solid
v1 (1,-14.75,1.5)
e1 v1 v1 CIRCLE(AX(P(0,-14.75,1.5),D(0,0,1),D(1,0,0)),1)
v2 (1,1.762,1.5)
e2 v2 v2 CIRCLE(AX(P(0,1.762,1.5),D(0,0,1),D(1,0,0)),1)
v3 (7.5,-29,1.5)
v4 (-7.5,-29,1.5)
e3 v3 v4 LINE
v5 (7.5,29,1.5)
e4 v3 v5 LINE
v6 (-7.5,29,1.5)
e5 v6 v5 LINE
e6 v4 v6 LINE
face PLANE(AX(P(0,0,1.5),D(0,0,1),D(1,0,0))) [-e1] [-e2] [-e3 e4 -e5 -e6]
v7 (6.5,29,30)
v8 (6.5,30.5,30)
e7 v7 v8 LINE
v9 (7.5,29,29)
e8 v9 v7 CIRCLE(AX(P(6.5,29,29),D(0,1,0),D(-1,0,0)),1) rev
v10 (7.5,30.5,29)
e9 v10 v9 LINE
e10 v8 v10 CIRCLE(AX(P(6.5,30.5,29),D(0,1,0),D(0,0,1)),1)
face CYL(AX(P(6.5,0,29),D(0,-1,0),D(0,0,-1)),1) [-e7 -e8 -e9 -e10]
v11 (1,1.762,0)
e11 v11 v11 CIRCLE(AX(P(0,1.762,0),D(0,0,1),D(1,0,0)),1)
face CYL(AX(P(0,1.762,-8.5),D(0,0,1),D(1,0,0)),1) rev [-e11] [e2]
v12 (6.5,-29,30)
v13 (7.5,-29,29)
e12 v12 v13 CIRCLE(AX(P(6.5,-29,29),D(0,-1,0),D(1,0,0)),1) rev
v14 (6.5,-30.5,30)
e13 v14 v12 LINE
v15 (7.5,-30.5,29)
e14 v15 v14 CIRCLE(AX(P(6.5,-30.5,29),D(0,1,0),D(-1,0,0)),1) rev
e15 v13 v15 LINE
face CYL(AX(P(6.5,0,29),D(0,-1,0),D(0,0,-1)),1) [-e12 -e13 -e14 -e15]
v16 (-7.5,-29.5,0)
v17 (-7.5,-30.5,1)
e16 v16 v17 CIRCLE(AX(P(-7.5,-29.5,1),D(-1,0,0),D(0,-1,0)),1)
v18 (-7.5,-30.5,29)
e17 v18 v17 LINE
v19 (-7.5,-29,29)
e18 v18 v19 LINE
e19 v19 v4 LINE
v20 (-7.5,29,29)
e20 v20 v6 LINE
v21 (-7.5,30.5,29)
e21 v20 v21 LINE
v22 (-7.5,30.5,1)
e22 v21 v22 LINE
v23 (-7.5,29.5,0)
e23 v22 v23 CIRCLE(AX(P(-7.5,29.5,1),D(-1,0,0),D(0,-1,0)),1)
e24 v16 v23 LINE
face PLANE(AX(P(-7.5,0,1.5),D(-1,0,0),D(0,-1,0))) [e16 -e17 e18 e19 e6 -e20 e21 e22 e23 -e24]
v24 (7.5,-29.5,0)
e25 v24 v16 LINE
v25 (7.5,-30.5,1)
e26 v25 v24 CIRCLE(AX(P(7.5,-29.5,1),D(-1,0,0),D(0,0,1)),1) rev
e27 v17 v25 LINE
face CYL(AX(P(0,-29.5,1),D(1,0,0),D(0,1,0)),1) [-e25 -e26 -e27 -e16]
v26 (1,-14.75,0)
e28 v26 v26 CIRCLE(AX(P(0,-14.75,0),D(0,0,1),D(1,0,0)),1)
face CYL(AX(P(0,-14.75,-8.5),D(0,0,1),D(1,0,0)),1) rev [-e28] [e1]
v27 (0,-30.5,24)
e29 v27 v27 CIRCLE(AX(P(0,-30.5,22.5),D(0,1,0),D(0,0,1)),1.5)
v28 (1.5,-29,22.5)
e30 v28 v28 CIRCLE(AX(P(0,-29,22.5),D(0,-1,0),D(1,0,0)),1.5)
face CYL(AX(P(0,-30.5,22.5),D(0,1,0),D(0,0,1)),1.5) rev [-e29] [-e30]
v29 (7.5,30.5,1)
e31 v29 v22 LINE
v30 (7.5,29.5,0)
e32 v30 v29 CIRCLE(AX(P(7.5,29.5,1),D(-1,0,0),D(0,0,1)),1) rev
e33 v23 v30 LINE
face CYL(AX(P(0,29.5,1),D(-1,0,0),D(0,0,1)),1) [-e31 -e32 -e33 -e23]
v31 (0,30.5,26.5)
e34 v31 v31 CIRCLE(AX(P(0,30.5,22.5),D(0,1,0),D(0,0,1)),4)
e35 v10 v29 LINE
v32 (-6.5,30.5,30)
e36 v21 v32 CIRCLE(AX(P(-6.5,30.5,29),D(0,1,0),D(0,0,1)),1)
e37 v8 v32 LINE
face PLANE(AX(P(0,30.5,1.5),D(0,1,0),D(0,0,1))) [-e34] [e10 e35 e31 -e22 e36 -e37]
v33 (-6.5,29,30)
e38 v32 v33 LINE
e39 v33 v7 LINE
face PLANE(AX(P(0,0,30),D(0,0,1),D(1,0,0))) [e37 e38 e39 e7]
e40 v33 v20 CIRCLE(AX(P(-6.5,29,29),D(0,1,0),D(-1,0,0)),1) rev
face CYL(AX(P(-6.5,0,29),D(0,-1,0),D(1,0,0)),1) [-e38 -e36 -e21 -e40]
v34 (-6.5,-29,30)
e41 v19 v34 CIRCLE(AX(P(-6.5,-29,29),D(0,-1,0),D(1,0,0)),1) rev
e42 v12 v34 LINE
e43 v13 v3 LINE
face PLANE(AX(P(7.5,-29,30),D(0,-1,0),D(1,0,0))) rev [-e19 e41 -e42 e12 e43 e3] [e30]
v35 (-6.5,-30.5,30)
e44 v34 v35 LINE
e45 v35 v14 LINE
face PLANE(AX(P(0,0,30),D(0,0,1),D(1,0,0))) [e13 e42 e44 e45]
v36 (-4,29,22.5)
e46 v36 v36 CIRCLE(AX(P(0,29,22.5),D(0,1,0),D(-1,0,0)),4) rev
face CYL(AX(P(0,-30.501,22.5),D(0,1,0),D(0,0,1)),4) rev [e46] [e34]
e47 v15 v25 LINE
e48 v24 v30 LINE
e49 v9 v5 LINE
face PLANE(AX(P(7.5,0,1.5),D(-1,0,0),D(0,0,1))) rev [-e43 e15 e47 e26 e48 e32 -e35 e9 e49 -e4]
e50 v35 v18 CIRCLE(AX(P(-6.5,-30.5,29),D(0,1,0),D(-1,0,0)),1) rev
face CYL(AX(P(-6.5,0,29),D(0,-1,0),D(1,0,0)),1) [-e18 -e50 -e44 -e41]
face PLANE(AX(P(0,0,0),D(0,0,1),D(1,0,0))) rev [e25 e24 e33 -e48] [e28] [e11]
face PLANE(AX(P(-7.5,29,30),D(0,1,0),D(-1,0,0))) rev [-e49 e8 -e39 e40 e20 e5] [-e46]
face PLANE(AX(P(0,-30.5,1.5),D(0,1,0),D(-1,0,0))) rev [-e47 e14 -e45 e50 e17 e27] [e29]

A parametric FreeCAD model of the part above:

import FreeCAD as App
import Part
import Sketcher

V = App.Vector
Q = App.Units.Quantity


def edges_at(feature, points):
    """Names of the edges that pass closest to the given points."""
    edges = feature.Shape.Edges
    near = lambda p: min(range(len(edges)), key=lambda i: edges[i].distToShape(Part.Vertex(*p))[0])
    return sorted({f"Edge{near(p) + 1}" for p in points})

doc = App.newDocument("Part")
body = doc.addObject("PartDesign::Body", "Body")

# Sketch on XY plane
sketch1 = body.newObject("Sketcher::SketchObject", "Sketch")
sketch1.AttachmentSupport = (doc.getObject("XY_Plane"), [""])
sketch1.MapMode = "FlatFace"
sketch1.addGeometry(Part.LineSegment(V(-7.5, -30.5, 0), V(7.5, -30.5, 0)), False)
sketch1.addGeometry(Part.LineSegment(V(7.5, -30.5, 0), V(7.5, 30.5, 0)), False)
sketch1.addGeometry(Part.LineSegment(V(7.5, 30.5, 0), V(-7.5, 30.5, 0)), False)
sketch1.addGeometry(Part.LineSegment(V(-7.5, 30.5, 0), V(-7.5, -30.5, 0)), False)
sketch1.addConstraint(Sketcher.Constraint("Coincident", 0, 2, 1, 1))
sketch1.addConstraint(Sketcher.Constraint("Coincident", 1, 2, 2, 1))
sketch1.addConstraint(Sketcher.Constraint("Coincident", 2, 2, 3, 1))
sketch1.addConstraint(Sketcher.Constraint("Coincident", 3, 2, 0, 1))
sketch1.addConstraint(Sketcher.Constraint("Horizontal", 0))
sketch1.addConstraint(Sketcher.Constraint("Vertical", 1))
sketch1.addConstraint(Sketcher.Constraint("Horizontal", 2))
sketch1.addConstraint(Sketcher.Constraint("Vertical", 3))
sketch1.addConstraint(Sketcher.Constraint("Symmetric", 0, 2, 2, 2, -1, 1))
sketch1.addConstraint(Sketcher.Constraint("DistanceX", 0, 1, 0, 2, Q("15 mm")))
sketch1.addConstraint(Sketcher.Constraint("DistanceY", 1, 1, 1, 2, Q("61 mm")))
pad1 = body.newObject("PartDesign::Pad", "Pad")
pad1.Profile = sketch1
pad1.Length = 1.5

# Sketch on XY plane
sketch2 = body.newObject("Sketcher::SketchObject", "Sketch001")
sketch2.AttachmentSupport = (doc.getObject("XY_Plane"), [""])
sketch2.MapMode = "FlatFace"
sketch2.AttachmentOffset = App.Placement(V(0, 0, 1.5), App.Rotation())
sketch2.addGeometry(Part.LineSegment(V(-7.5, 30.5, 0), V(-7.5, 29, 0)), False)
sketch2.addGeometry(Part.LineSegment(V(-7.5, 29, 0), V(7.5, 29, 0)), False)
sketch2.addGeometry(Part.LineSegment(V(7.5, 29, 0), V(7.5, 30.5, 0)), False)
sketch2.addGeometry(Part.LineSegment(V(7.5, 30.5, 0), V(-7.5, 30.5, 0)), False)
sketch2.addGeometry(Part.LineSegment(V(-7.5, -29, 0), V(-7.5, -30.5, 0)), False)
sketch2.addGeometry(Part.LineSegment(V(-7.5, -30.5, 0), V(7.5, -30.5, 0)), False)
sketch2.addGeometry(Part.LineSegment(V(7.5, -30.5, 0), V(7.5, -29, 0)), False)
sketch2.addGeometry(Part.LineSegment(V(7.5, -29, 0), V(-7.5, -29, 0)), False)
sketch2.addConstraint(Sketcher.Constraint("Coincident", 0, 2, 1, 1))
sketch2.addConstraint(Sketcher.Constraint("Coincident", 1, 2, 2, 1))
sketch2.addConstraint(Sketcher.Constraint("Coincident", 2, 2, 3, 1))
sketch2.addConstraint(Sketcher.Constraint("Coincident", 3, 2, 0, 1))
sketch2.addConstraint(Sketcher.Constraint("Coincident", 4, 2, 5, 1))
sketch2.addConstraint(Sketcher.Constraint("Coincident", 5, 2, 6, 1))
sketch2.addConstraint(Sketcher.Constraint("Coincident", 6, 2, 7, 1))
sketch2.addConstraint(Sketcher.Constraint("Coincident", 7, 2, 4, 1))
sketch2.addConstraint(Sketcher.Constraint("Vertical", 0))
sketch2.addConstraint(Sketcher.Constraint("Horizontal", 1))
sketch2.addConstraint(Sketcher.Constraint("Vertical", 2))
sketch2.addConstraint(Sketcher.Constraint("Horizontal", 3))
sketch2.addConstraint(Sketcher.Constraint("Vertical", 4))
sketch2.addConstraint(Sketcher.Constraint("Horizontal", 5))
sketch2.addConstraint(Sketcher.Constraint("Vertical", 6))
sketch2.addConstraint(Sketcher.Constraint("Horizontal", 7))
sketch2.addConstraint(Sketcher.Constraint("Symmetric", 2, 2, 4, 2, -1, 1))
sketch2.addConstraint(Sketcher.Constraint("Symmetric", 0, 2, 6, 2, -1, 1))
sketch2.addConstraint(Sketcher.Constraint("Vertical", 3, 2, 4, 2))
sketch2.addConstraint(Sketcher.Constraint("DistanceX", 1, 1, 1, 2, Q("15 mm")))
sketch2.addConstraint(Sketcher.Constraint("DistanceY", 0, 2, 0, 1, Q("1.5 mm")))
sketch2.addConstraint(Sketcher.Constraint("DistanceY", -1, 1, 0, 2, Q("29 mm")))
pad2 = body.newObject("PartDesign::Pad", "Pad001")
pad2.Profile = sketch2
pad2.Length = 28.5

# Sketch on XZ plane
sketch3 = body.newObject("Sketcher::SketchObject", "Sketch002")
sketch3.AttachmentSupport = (doc.getObject("XZ_Plane"), [""])
sketch3.MapMode = "FlatFace"
sketch3.AttachmentOffset = App.Placement(V(0, 0, -30.5), App.Rotation())
sketch3.addGeometry(Part.Circle(V(0, 22.5, 0), V(0, 0, 1), 1.5), False)
sketch3.addConstraint(Sketcher.Constraint("PointOnObject", 0, 3, -2))
sketch3.addConstraint(Sketcher.Constraint("Diameter", 0, Q("3 mm")))
sketch3.addConstraint(Sketcher.Constraint("DistanceY", -1, 1, 0, 3, Q("22.5 mm")))
pocket1 = body.newObject("PartDesign::Pocket", "Pocket")
pocket1.Profile = sketch3
pocket1.Type = "ThroughAll"
pocket1.Reversed = True
doc.recompute()

fillet = body.newObject("PartDesign::Fillet", "Fillet")
fillet.Base = (pocket1, edges_at(pocket1, [
    (0, -30.5, 0),
    (-7.5, -29.75, 30),
    (7.5, -29.75, 30),
    (7.5, 29.75, 30),
    (-7.5, 29.75, 30),
    (0, 30.5, 0),
]))
fillet.Radius = 1

# Sketch on XZ plane
sketch4 = body.newObject("Sketcher::SketchObject", "Sketch003")
sketch4.AttachmentSupport = (doc.getObject("XZ_Plane"), [""])
sketch4.MapMode = "FlatFace"
sketch4.AttachmentOffset = App.Placement(V(0, 0, -30.5), App.Rotation())
sketch4.addGeometry(Part.Circle(V(0, 22.5, 0), V(0, 0, 1), 4), False)
sketch4.addConstraint(Sketcher.Constraint("PointOnObject", 0, 3, -2))
sketch4.addConstraint(Sketcher.Constraint("Diameter", 0, Q("8 mm")))
sketch4.addConstraint(Sketcher.Constraint("DistanceY", -1, 1, 0, 3, Q("22.5 mm")))
pocket2 = body.newObject("PartDesign::Pocket", "Pocket001")
pocket2.Profile = sketch4
pocket2.Length = 1.5
pocket2.Reversed = True

# Sketch on XY plane
sketch5 = body.newObject("Sketcher::SketchObject", "Sketch004")
sketch5.AttachmentSupport = (doc.getObject("XY_Plane"), [""])
sketch5.MapMode = "FlatFace"
sketch5.AttachmentOffset = App.Placement(V(0, 0, 1.5), App.Rotation())
sketch5.addGeometry(Part.Circle(V(0, -14.75, 0), V(0, 0, 1), 1), False)
sketch5.addGeometry(Part.Circle(V(0, 1.762, 0), V(0, 0, 1), 1), False)
sketch5.addConstraint(Sketcher.Constraint("Equal", 0, 1))
sketch5.addConstraint(Sketcher.Constraint("PointOnObject", 0, 3, -2))
sketch5.addConstraint(Sketcher.Constraint("PointOnObject", 1, 3, -2))
sketch5.addConstraint(Sketcher.Constraint("Diameter", 0, Q("2 mm")))
sketch5.addConstraint(Sketcher.Constraint("DistanceY", 0, 3, -1, 1, Q("14.75 mm")))
sketch5.addConstraint(Sketcher.Constraint("DistanceY", -1, 1, 1, 3, Q("1.762 mm")))
pocket3 = body.newObject("PartDesign::Pocket", "Pocket002")
pocket3.Profile = sketch5
pocket3.Length = 10

doc.recompute()
